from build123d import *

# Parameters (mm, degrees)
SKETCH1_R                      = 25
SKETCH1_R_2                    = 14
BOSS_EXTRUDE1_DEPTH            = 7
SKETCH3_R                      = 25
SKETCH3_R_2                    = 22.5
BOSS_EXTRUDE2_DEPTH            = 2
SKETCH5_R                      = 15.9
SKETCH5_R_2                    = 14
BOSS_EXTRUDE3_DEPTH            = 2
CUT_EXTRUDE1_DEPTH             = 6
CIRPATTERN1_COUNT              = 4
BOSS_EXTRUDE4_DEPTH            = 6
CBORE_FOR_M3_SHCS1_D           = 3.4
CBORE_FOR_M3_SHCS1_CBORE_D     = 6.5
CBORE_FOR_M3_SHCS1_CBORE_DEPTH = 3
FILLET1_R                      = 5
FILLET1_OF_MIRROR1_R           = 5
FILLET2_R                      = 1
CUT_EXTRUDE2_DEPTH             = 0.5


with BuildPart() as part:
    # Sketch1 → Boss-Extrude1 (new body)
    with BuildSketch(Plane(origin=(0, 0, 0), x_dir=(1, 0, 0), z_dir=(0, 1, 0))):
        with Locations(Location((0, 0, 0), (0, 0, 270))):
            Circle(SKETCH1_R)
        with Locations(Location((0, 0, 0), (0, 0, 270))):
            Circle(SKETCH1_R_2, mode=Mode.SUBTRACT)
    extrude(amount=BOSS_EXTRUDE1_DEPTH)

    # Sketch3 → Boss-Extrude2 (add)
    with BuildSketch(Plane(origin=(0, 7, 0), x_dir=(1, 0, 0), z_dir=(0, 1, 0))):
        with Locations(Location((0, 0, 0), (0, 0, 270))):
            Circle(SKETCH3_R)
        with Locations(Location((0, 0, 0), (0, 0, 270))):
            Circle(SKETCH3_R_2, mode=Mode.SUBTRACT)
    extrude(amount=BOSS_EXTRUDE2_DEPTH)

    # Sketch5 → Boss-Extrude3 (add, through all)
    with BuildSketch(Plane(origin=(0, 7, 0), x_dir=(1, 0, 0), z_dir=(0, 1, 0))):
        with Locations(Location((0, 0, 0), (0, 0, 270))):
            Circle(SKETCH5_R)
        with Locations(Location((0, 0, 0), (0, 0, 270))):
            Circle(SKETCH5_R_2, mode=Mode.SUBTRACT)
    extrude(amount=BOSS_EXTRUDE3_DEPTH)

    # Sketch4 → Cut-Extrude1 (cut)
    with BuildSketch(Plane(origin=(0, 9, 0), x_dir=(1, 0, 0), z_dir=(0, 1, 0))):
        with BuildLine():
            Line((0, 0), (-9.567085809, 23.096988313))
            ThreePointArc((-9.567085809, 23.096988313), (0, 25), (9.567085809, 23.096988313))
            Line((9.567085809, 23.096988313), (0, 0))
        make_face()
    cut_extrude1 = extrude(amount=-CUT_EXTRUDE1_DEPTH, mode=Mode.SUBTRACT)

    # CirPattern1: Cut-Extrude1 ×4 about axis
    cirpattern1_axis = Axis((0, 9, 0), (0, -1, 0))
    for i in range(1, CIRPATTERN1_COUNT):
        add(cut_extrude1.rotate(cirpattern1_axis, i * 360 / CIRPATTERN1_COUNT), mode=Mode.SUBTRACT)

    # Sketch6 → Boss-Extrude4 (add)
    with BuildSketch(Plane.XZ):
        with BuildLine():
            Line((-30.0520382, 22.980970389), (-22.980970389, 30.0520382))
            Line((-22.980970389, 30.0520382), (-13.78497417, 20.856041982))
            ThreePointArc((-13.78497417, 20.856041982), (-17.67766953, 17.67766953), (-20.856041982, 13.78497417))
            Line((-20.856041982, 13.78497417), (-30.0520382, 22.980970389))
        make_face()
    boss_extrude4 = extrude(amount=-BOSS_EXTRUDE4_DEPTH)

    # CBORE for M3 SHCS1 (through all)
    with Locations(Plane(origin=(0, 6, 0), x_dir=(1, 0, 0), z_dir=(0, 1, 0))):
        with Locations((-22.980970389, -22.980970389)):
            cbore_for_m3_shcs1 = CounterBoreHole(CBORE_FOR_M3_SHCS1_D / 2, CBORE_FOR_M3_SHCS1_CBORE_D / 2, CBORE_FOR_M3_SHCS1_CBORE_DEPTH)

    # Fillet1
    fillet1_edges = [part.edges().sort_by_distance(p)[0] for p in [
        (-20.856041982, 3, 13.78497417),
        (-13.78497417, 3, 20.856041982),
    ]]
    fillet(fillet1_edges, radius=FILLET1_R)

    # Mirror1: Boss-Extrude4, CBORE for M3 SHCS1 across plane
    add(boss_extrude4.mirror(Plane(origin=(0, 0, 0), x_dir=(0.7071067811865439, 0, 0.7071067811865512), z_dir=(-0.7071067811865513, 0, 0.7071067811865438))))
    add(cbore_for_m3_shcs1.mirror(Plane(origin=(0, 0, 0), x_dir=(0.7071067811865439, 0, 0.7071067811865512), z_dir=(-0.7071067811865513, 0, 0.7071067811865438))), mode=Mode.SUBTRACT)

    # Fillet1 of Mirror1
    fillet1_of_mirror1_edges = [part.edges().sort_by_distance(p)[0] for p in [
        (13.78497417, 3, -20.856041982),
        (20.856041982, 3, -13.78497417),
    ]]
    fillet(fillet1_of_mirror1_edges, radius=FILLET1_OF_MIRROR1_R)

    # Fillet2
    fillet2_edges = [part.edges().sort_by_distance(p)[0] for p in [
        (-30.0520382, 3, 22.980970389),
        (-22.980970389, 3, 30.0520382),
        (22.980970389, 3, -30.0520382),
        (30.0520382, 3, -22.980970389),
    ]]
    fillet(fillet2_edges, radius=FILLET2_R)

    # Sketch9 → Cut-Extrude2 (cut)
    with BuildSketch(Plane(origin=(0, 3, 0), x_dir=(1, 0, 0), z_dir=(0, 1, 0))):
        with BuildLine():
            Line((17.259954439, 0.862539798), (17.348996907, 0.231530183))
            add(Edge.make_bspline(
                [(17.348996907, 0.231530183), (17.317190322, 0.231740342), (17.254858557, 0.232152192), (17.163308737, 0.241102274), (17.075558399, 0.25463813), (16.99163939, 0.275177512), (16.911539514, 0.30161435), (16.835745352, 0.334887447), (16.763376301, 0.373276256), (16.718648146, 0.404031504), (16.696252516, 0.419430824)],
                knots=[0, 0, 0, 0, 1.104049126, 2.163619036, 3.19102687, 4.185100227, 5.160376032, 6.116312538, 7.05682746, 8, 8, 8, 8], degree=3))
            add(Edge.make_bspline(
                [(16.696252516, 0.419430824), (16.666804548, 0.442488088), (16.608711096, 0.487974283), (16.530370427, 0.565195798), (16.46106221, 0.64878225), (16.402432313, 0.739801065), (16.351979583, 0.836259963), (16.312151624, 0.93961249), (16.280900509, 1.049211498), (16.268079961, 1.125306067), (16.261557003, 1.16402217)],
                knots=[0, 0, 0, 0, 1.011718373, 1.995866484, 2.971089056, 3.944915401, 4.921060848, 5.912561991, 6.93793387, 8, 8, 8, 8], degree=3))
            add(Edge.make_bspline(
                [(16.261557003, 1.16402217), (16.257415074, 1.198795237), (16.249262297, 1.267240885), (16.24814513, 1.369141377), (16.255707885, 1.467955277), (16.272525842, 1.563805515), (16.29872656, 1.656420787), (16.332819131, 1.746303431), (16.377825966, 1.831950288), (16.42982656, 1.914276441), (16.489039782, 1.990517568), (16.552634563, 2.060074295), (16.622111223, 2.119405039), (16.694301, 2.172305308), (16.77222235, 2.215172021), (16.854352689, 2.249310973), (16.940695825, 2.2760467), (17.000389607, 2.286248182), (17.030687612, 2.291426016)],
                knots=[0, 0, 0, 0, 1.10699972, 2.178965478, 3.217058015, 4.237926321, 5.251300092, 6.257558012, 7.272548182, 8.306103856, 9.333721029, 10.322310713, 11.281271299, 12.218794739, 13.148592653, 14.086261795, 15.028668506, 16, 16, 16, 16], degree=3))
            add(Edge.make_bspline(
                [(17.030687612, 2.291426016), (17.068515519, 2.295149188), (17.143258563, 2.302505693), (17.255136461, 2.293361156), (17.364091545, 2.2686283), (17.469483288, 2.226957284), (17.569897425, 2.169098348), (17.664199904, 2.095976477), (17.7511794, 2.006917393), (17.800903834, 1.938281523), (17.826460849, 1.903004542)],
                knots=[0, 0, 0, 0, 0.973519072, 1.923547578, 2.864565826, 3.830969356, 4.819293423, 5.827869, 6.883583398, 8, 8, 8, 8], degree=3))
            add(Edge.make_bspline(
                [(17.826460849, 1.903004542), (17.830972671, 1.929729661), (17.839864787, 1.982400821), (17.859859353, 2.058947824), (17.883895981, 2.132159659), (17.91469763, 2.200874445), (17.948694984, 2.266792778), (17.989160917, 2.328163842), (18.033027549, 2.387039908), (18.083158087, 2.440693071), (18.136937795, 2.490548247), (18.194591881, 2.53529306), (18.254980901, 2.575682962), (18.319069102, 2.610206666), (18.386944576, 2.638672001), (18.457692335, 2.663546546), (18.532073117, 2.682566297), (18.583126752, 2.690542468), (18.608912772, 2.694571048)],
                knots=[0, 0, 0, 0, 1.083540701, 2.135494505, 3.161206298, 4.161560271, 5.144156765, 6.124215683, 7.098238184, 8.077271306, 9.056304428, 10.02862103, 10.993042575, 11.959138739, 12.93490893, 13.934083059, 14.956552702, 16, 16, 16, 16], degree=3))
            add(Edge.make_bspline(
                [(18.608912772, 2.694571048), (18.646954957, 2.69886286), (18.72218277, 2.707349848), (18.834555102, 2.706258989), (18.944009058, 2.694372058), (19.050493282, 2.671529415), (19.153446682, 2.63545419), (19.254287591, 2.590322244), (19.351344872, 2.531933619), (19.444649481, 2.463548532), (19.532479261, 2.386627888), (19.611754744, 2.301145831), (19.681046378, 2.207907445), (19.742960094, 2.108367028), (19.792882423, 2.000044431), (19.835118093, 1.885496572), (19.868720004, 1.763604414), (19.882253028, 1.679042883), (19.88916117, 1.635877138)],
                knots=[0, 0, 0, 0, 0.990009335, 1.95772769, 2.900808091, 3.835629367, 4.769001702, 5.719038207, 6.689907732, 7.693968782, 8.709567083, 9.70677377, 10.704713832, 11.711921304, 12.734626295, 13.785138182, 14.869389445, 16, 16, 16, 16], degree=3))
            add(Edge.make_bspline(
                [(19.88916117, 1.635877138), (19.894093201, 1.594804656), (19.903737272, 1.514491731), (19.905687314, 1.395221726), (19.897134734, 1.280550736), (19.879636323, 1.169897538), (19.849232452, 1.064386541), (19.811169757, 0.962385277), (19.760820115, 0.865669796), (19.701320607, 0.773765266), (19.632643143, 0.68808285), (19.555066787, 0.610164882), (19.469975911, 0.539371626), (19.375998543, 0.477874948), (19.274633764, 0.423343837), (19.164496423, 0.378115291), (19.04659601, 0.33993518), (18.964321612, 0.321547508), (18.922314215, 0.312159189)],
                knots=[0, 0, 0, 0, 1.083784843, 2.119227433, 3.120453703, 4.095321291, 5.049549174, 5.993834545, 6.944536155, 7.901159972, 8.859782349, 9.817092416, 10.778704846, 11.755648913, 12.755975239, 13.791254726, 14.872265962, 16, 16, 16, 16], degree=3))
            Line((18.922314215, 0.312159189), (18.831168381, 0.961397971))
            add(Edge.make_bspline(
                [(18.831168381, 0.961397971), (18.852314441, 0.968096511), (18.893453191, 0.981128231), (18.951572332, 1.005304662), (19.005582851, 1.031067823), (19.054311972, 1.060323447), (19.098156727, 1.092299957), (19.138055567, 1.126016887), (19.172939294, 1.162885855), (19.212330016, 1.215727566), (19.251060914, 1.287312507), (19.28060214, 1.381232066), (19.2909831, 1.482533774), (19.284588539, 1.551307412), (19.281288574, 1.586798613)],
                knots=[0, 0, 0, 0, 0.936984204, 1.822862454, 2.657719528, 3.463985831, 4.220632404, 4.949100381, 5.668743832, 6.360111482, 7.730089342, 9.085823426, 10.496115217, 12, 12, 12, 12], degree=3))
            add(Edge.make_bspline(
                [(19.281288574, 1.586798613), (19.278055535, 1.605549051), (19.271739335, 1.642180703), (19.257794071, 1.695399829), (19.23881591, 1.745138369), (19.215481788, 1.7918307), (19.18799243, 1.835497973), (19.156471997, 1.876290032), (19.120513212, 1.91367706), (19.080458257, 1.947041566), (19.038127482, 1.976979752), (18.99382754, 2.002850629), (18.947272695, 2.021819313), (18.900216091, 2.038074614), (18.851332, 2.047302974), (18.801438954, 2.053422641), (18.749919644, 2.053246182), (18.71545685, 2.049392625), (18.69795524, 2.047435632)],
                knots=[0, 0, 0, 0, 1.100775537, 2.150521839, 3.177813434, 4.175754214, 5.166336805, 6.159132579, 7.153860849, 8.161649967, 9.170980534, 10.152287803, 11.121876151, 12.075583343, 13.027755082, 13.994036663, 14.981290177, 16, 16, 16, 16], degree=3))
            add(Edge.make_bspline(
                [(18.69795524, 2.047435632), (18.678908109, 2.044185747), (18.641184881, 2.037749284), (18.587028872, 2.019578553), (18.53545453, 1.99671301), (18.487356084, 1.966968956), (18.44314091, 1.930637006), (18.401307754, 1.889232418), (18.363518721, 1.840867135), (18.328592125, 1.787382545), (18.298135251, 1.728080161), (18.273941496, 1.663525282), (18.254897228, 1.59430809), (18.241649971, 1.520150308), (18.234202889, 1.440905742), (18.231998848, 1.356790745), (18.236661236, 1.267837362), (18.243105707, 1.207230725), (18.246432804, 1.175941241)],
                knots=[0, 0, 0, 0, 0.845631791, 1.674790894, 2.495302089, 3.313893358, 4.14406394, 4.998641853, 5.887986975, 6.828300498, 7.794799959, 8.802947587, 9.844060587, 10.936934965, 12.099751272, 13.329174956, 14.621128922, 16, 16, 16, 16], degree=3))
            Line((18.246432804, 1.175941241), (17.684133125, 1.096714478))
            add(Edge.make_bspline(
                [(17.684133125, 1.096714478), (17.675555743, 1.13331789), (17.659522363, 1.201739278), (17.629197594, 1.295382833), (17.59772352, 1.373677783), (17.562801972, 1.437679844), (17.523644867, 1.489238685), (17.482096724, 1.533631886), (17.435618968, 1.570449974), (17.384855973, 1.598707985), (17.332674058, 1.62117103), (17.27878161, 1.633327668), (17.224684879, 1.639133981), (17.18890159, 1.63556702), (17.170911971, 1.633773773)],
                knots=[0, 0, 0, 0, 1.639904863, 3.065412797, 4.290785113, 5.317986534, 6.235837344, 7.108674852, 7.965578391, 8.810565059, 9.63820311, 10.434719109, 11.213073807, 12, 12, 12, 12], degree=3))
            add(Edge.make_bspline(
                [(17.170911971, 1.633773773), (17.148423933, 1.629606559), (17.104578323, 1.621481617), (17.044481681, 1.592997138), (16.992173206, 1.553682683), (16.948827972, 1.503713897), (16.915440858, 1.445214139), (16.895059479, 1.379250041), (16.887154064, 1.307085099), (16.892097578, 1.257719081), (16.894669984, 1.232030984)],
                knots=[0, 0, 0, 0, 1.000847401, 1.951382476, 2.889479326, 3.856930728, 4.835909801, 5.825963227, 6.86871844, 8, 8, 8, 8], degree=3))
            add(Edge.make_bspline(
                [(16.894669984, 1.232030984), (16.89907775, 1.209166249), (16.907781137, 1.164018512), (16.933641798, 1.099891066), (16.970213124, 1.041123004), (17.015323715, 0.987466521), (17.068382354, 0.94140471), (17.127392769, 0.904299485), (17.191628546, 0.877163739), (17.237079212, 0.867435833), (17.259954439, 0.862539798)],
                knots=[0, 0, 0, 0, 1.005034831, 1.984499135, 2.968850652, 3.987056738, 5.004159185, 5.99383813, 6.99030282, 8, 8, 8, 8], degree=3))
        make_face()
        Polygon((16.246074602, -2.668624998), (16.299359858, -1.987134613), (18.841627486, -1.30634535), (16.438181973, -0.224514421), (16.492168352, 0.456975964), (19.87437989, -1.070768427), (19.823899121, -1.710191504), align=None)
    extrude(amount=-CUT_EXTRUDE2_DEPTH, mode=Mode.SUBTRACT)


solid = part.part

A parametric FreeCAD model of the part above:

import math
import FreeCAD as App
import Part
import Sketcher
Q = App.Units.Quantity


def edges_at(feature, points):
    """Names of the edges that pass closest to the given points."""
    edges = feature.Shape.Edges
    near = lambda p: min(range(len(edges)), key=lambda i: edges[i].distToShape(Part.Vertex(*p))[0])
    return sorted({f"Edge{near(p) + 1}" for p in points})


def add_polygon(sketch, points):
    """Adds a closed chain of lines whose ends are joined by coincident constraints."""
    first, n = sketch.GeometryCount, len(points)
    for a, b in zip(points, points[1:] + points[:1]):
        sketch.addGeometry(Part.LineSegment(App.Vector(*a, 0), App.Vector(*b, 0)), False)
    for i in range(n):
        sketch.addConstraint(Sketcher.Constraint("Coincident", first + i, 2, first + (i + 1) % n, 1))

doc = App.newDocument("Part")
params = doc.addObject("Spreadsheet::Sheet", "Params")
for row, (alias, value) in enumerate([
    ("sketch1_diameter", "50 mm"),
    ("sketch1_diameter2", "28 mm"),
    ("pad1_length", "7 mm"),
    ("sketch2_diameter", "50 mm"),
    ("sketch2_diameter2", "45 mm"),
    ("pad2_length", "2 mm"),
    ("sketch3_diameter", "28 mm"),
    ("sketch3_diameter2", "31.8 mm"),
    ("pad3_length", "2 mm"),
    ("sketch4_radius", "25 mm"),
    ("pocket1_length", "6 mm"),
    ("sketch5_radius", "25 mm"),
    ("sketch5_length", "10 mm"),
    ("pad4_length", "6 mm"),
    ("sketch6_diameter", "3.4 mm"),
    ("hole_diameter", "3.4 mm"),
    ("hole_cbore_diameter", "6.5 mm"),
    ("hole_cbore_depth", "3 mm"),
    ("fillet_radius", "5 mm"),
    ("fillet2_radius", "5 mm"),
    ("fillet3_radius", "1 mm"),
    ("pocket2_length", "0.5 mm"),
], start=1):
    params.set(f"A{row}", alias)
    params.set(f"B{row}", "=" + value)
    params.setAlias(f"B{row}", alias)

body = doc.addObject("PartDesign::Body", "Body")

# Sketch on XZ plane
sketch1 = doc.addObject("Sketcher::SketchObject", "Sketch")
body.addObject(sketch1)
sketch1.AttachmentSupport = (doc.XZ_Plane, [""])
sketch1.MapMode = "FlatFace"
sketch1.addGeometry([
    Part.Circle(App.Vector(0, 0, 0), App.Vector(0, 0, 1), 25),
    Part.Circle(App.Vector(0, 0, 0), App.Vector(0, 0, 1), 14),
], False)
sketch1.addConstraint([
    Sketcher.Constraint("Coincident", 0, 3, -1, 1),
    Sketcher.Constraint("Coincident", 1, 3, -1, 1),
    Sketcher.Constraint("Diameter", 0, Q("50 mm")),
    Sketcher.Constraint("Diameter", 1, Q("28 mm")),
])
sketch1.setExpression("Constraints[2]", "Params.sketch1_diameter")
sketch1.setExpression("Constraints[3]", "Params.sketch1_diameter2")
pad1 = doc.addObject("PartDesign::Pad", "Pad")
body.addObject(pad1)
pad1.Profile = sketch1
pad1.setExpression("Length", "Params.pad1_length")
pad1.Reversed = True

# Sketch on XZ plane
sketch2 = doc.addObject("Sketcher::SketchObject", "Sketch001")
body.addObject(sketch2)
sketch2.AttachmentSupport = (doc.XZ_Plane, [""])
sketch2.MapMode = "FlatFace"
sketch2.AttachmentOffset = App.Placement(App.Vector(0, 0, -7), App.Rotation())
sketch2.addGeometry([
    Part.Circle(App.Vector(0, 0, 0), App.Vector(0, 0, 1), 25),
    Part.Circle(App.Vector(0, 0, 0), App.Vector(0, 0, 1), 22),
], False)
sketch2.addConstraint([
    Sketcher.Constraint("Coincident", 0, 3, -1, 1),
    Sketcher.Constraint("Coincident", 1, 3, -1, 1),
    Sketcher.Constraint("Diameter", 0, Q("50 mm")),
    Sketcher.Constraint("Diameter", 1, Q("45 mm")),
])
sketch2.setExpression("Constraints[2]", "Params.sketch2_diameter")
sketch2.setExpression("Constraints[3]", "Params.sketch2_diameter2")
pad2 = doc.addObject("PartDesign::Pad", "Pad001")
body.addObject(pad2)
pad2.Profile = sketch2
pad2.setExpression("Length", "Params.pad2_length")
pad2.Reversed = True

# Sketch on XZ plane
sketch3 = doc.addObject("Sketcher::SketchObject", "Sketch002")
body.addObject(sketch3)
sketch3.AttachmentSupport = (doc.XZ_Plane, [""])
sketch3.MapMode = "FlatFace"
sketch3.AttachmentOffset = App.Placement(App.Vector(0, 0, -7), App.Rotation())
sketch3.addGeometry([
    Part.Circle(App.Vector(0, 0, 0), App.Vector(0, 0, 1), 16),
    Part.Circle(App.Vector(0, 0, 0), App.Vector(0, 0, 1), 14),
], False)
sketch3.addConstraint([
    Sketcher.Constraint("Coincident", 0, 3, -1, 1),
    Sketcher.Constraint("Coincident", 1, 3, -1, 1),
    Sketcher.Constraint("Diameter", 1, Q("28 mm")),
    Sketcher.Constraint("Diameter", 0, Q("31.8 mm")),
])
sketch3.setExpression("Constraints[2]", "Params.sketch3_diameter")
sketch3.setExpression("Constraints[3]", "Params.sketch3_diameter2")
pad3 = doc.addObject("PartDesign::Pad", "Pad002")
body.addObject(pad3)
pad3.Profile = sketch3
pad3.setExpression("Length", "Params.pad3_length")
pad3.Reversed = True

# Sketch on XZ plane
sketch4 = doc.addObject("Sketcher::SketchObject", "Sketch003")
body.addObject(sketch4)
sketch4.AttachmentSupport = (doc.XZ_Plane, [""])
sketch4.MapMode = "FlatFace"
sketch4.AttachmentOffset = App.Placement(App.Vector(0, 0, -9), App.Rotation())
sketch4.addGeometry([
    Part.LineSegment(App.Vector(-10, -23, 0), App.Vector(0, 0, 0)),
    Part.LineSegment(App.Vector(0, 0, 0), App.Vector(10, -23, 0)),
    Part.ArcOfCircle(Part.Circle(App.Vector(0, 0, 0), App.Vector(0, 0, 1), 25), math.radians(-112), math.radians(-68)),
], False)
sketch4.addConstraint([
    Sketcher.Constraint("Coincident", 0, 2, 1, 1),
    Sketcher.Constraint("Coincident", 1, 2, 2, 2),
    Sketcher.Constraint("Coincident", 2, 1, 0, 1),
    Sketcher.Constraint("Coincident", 2, 3, -1, 1),
    Sketcher.Constraint("Coincident", 0, 2, -1, 1),
    Sketcher.Constraint("Horizontal", 1, 2, 2, 1),
    Sketcher.Constraint("Radius", 2, Q("25 mm")),
    Sketcher.Constraint("Angle", 0, Q("67.5 deg")),
])
sketch4.setExpression("Constraints[6]", "Params.sketch4_radius")
pocket1 = doc.addObject("PartDesign::Pocket", "Pocket")
body.addObject(pocket1)
pocket1.Profile = sketch4
pocket1.setExpression("Length", "Params.pocket1_length")
pocket1.Reversed = True
doc.recompute()

polarpattern = doc.addObject("PartDesign::PolarPattern", "PolarPattern")
body.addObject(polarpattern)
polarpattern.Originals = [pocket1]
polarpattern.Axis = (doc.Y_Axis, [""])
polarpattern.Angle = 360
polarpattern.Occurrences = 4
body.Tip = polarpattern

# Sketch on XZ plane
sketch5 = doc.addObject("Sketcher::SketchObject", "Sketch004")
body.addObject(sketch5)
sketch5.AttachmentSupport = (doc.XZ_Plane, [""])
sketch5.MapMode = "FlatFace"
sketch5.addGeometry([
    Part.LineSegment(App.Vector(-23, 30, 0), App.Vector(-30, 23, 0)),
    Part.LineSegment(App.Vector(-30, 23, 0), App.Vector(-21, 14, 0)),
    Part.ArcOfCircle(Part.Circle(App.Vector(0, 0, 0), App.Vector(0, 0, 1), 25), math.radians(123), math.radians(147)),
    Part.LineSegment(App.Vector(-14, 21, 0), App.Vector(-23, 30, 0)),
], False)
sketch5.addConstraint([
    Sketcher.Constraint("Coincident", 0, 2, 1, 1),
    Sketcher.Constraint("Coincident", 1, 2, 2, 2),
    Sketcher.Constraint("Coincident", 2, 1, 3, 1),
    Sketcher.Constraint("Coincident", 3, 2, 0, 1),
    Sketcher.Constraint("Coincident", 2, 3, -1, 1),
    Sketcher.Constraint("Perpendicular", 0, 1),
    Sketcher.Constraint("Parallel", 1, 3),
    Sketcher.Constraint("Equal", 1, 3),
    Sketcher.Constraint("Radius", 2, Q("25 mm")),
    Sketcher.Constraint("Angle", 0, Q("-135 deg")),
    Sketcher.Constraint("Distance", 0, Q("10 mm")),
    Sketcher.Constraint("DistanceX", 0, 2, -1, 1, Q("30.052038 mm")),
])
sketch5.setExpression("Constraints[8]", "Params.sketch5_radius")
sketch5.setExpression("Constraints[10]", "Params.sketch5_length")
pad4 = doc.addObject("PartDesign::Pad", "Pad003")
body.addObject(pad4)
pad4.Profile = sketch5
pad4.setExpression("Length", "Params.pad4_length")
pad4.Reversed = True

# Sketch on XZ plane
sketch6 = doc.addObject("Sketcher::SketchObject", "Sketch005")
body.addObject(sketch6)
sketch6.AttachmentSupport = (doc.XZ_Plane, [""])
sketch6.MapMode = "FlatFace"
sketch6.AttachmentOffset = App.Placement(App.Vector(0, 0, -6), App.Rotation())
sketch6.addGeometry(Part.Circle(App.Vector(-23, 23, 0), App.Vector(0, 0, 1), 1.7), False)
sketch6.addConstraint([
    Sketcher.Constraint("Diameter", 0, Q("3.4 mm")),
    Sketcher.Constraint("DistanceX", 0, 3, -1, 1, Q("22.98097 mm")),
    Sketcher.Constraint("DistanceY", -1, 1, 0, 3, Q("22.98097 mm")),
])
sketch6.setExpression("Constraints[0]", "Params.sketch6_diameter")
doc.recompute()
hole = doc.addObject("PartDesign::Hole", "Hole")
body.addObject(hole)
hole.Profile = sketch6
hole.ThreadType = "None"
hole.setExpression("Diameter", "Params.hole_diameter")
hole.DepthType = "ThroughAll"
hole.HoleCutType = "Counterbore"
hole.setExpression("HoleCutDiameter", "Params.hole_cbore_diameter")
hole.setExpression("HoleCutDepth", "Params.hole_cbore_depth")
hole.Reversed = True
doc.recompute()

fillet = doc.addObject("PartDesign::Fillet", "Fillet")
body.addObject(fillet)
fillet.Base = (hole, edges_at(hole, [(-20.856, 3, 13.785), (-13.785, 3, 20.856)]))
fillet.setExpression("Radius", "Params.fillet_radius")
doc.recompute()

datumplane = doc.addObject("PartDesign::Plane", "DatumPlane")
body.addObject(datumplane)
datumplane.Placement = App.Placement(App.Vector(0, 0, 0), App.Rotation(App.Vector(-0.707106781, 0, -0.707106781), App.Vector(0, -1, 0), App.Vector(-0.707106781, 0, 0.707106781), "ZXY"))
mirrored = doc.addObject("PartDesign::Mirrored", "Mirrored")
body.addObject(mirrored)
mirrored.Originals = [pad4, hole]
mirrored.MirrorPlane = (datumplane, [""])
body.Tip = mirrored
doc.recompute()

fillet2 = doc.addObject("PartDesign::Fillet", "Fillet001")
body.addObject(fillet2)
fillet2.Base = (mirrored, edges_at(mirrored, [(13.785, 3, -20.856), (20.856, 3, -13.785)]))
fillet2.setExpression("Radius", "Params.fillet2_radius")
doc.recompute()

fillet3 = doc.addObject("PartDesign::Fillet", "Fillet002")
body.addObject(fillet3)
fillet3.Base = (fillet2, edges_at(fillet2, [
    (-30.052, 3, 22.981),
    (-22.981, 3, 30.052),
    (22.981, 3, -30.052),
    (30.052, 3, -22.981),
]))
fillet3.setExpression("Radius", "Params.fillet3_radius")

# Sketch on XZ plane
sketch7 = doc.addObject("Sketcher::SketchObject", "Sketch006")
body.addObject(sketch7)
sketch7.AttachmentSupport = (doc.XZ_Plane, [""])
sketch7.MapMode = "FlatFace"
sketch7.AttachmentOffset = App.Placement(App.Vector(0, 0, -3), App.Rotation())
sketch7.addGeometry(Part.LineSegment(App.Vector(17.348997, -0.23153, 0), App.Vector(17.259954, -0.86254, 0)), False)  # 0
sketch7.addGeometry(Part.BSplineCurve([App.Vector(16.89467, -1.232031, 0), App.Vector(16.899078, -1.209166, 0), App.Vector(16.907781, -1.164019, 0), App.Vector(16.933642, -1.099891, 0), App.Vector(16.970213, -1.041123, 0), App.Vector(17.015324, -0.987467, 0), App.Vector(17.068382, -0.941405, 0), App.Vector(17.127393, -0.904299, 0), App.Vector(17.191629, -0.877164, 0), App.Vector(17.237079, -0.867436, 0), App.Vector(17.259954, -0.86254, 0)], [4, 1, 1, 1, 1, 1, 1, 1, 4], [0, 1.005034831, 1.984499135, 2.968850652, 3.987056738, 5.004159185, 5.99383813, 6.99030282, 8], False, 3, [1, 1, 1, 1, 1, 1, 1, 1, 1, 1, 1], False), False)  # 1
sketch7.addGeometry(Part.BSplineCurve([App.Vector(17.170912, -1.633774, 0), App.Vector(17.148424, -1.629607, 0), App.Vector(17.104578, -1.621482, 0), App.Vector(17.044482, -1.592997, 0), App.Vector(16.992173, -1.553683, 0), App.Vector(16.948828, -1.503714, 0), App.Vector(16.915441, -1.445214, 0), App.Vector(16.895059, -1.37925, 0), App.Vector(16.887154, -1.307085, 0), App.Vector(16.892098, -1.257719, 0), App.Vector(16.89467, -1.232031, 0)], [4, 1, 1, 1, 1, 1, 1, 1, 4], [0, 1.000847401, 1.951382476, 2.889479326, 3.856930728, 4.835909801, 5.825963227, 6.86871844, 8], False, 3, [1, 1, 1, 1, 1, 1, 1, 1, 1, 1, 1], False), False)  # 2
sketch7.addGeometry(Part.BSplineCurve([App.Vector(17.684133, -1.096714, 0), App.Vector(17.675556, -1.133318, 0), App.Vector(17.659522, -1.201739, 0), App.Vector(17.629198, -1.295383, 0), App.Vector(17.597724, -1.373678, 0), App.Vector(17.562802, -1.43768, 0), App.Vector(17.523645, -1.489239, 0), App.Vector(17.482097, -1.533632, 0), App.Vector(17.435619, -1.57045, 0), App.Vector(17.384856, -1.598708, 0), App.Vector(17.332674, -1.621171, 0), App.Vector(17.278782, -1.633328, 0), App.Vector(17.224685, -1.639134, 0), App.Vector(17.188902, -1.635567, 0), App.Vector(17.170912, -1.633774, 0)], [4, 1, 1, 1, 1, 1, 1, 1, 1, 1, 1, 1, 4], [0, 1.639904863, 3.065412797, 4.290785113, 5.317986534, 6.235837344, 7.108674852, 7.965578391, 8.810565059, 9.63820311, 10.434719109, 11.213073807, 12], False, 3, [1, 1, 1, 1, 1, 1, 1, 1, 1, 1, 1, 1, 1, 1, 1], False), False)  # 3
sketch7.addGeometry(Part.LineSegment(App.Vector(17.684133, -1.096714, 0), App.Vector(18.246433, -1.175941, 0)), False)  # 4
sketch7.addGeometry(Part.BSplineCurve([App.Vector(18.697955, -2.047436, 0), App.Vector(18.678908, -2.044186, 0), App.Vector(18.641185, -2.037749, 0), App.Vector(18.587029, -2.019579, 0), App.Vector(18.535455, -1.996713, 0), App.Vector(18.487356, -1.966969, 0), App.Vector(18.443141, -1.930637, 0), App.Vector(18.401308, -1.889232, 0), App.Vector(18.363519, -1.840867, 0), App.Vector(18.328592, -1.787383, 0), App.Vector(18.298135, -1.72808, 0), App.Vector(18.273941, -1.663525, 0), App.Vector(18.254897, -1.594308, 0), App.Vector(18.24165, -1.52015, 0), App.Vector(18.234203, -1.440906, 0), App.Vector(18.231999, -1.356791, 0), App.Vector(18.236661, -1.267837, 0), App.Vector(18.243106, -1.207231, 0), App.Vector(18.246433, -1.175941, 0)], [4, 1, 1, 1, 1, 1, 1, 1, 1, 1, 1, 1, 1, 1, 1, 1, 4], [0, 0.845631791, 1.674790894, 2.495302089, 3.313893358, 4.14406394, 4.998641853, 5.887986975, 6.828300498, 7.794799959, 8.802947587, 9.844060587, 10.936934965, 12.099751272, 13.329174956, 14.621128922, 16], False, 3, [1, 1, 1, 1, 1, 1, 1, 1, 1, 1, 1, 1, 1, 1, 1, 1, 1, 1, 1], False), False)  # 5
sketch7.addGeometry(Part.BSplineCurve([App.Vector(19.281289, -1.586799, 0), App.Vector(19.278056, -1.605549, 0), App.Vector(19.271739, -1.642181, 0), App.Vector(19.257794, -1.6954, 0), App.Vector(19.238816, -1.745138, 0), App.Vector(19.215482, -1.791831, 0), App.Vector(19.187992, -1.835498, 0), App.Vector(19.156472, -1.87629, 0), App.Vector(19.120513, -1.913677, 0), App.Vector(19.080458, -1.947042, 0), App.Vector(19.038127, -1.97698, 0), App.Vector(18.993828, -2.002851, 0), App.Vector(18.947273, -2.021819, 0), App.Vector(18.900216, -2.038075, 0), App.Vector(18.851332, -2.047303, 0), App.Vector(18.801439, -2.053423, 0), App.Vector(18.74992, -2.053246, 0), App.Vector(18.715457, -2.049393, 0), App.Vector(18.697955, -2.047436, 0)], [4, 1, 1, 1, 1, 1, 1, 1, 1, 1, 1, 1, 1, 1, 1, 1, 4], [0, 1.100775537, 2.150521839, 3.177813434, 4.175754214, 5.166336805, 6.159132579, 7.153860849, 8.161649967, 9.170980534, 10.152287803, 11.121876151, 12.075583343, 13.027755082, 13.994036663, 14.981290177, 16], False, 3, [1, 1, 1, 1, 1, 1, 1, 1, 1, 1, 1, 1, 1, 1, 1, 1, 1, 1, 1], False), False)  # 6
sketch7.addGeometry(Part.BSplineCurve([App.Vector(18.831168, -0.961398, 0), App.Vector(18.852314, -0.968097, 0), App.Vector(18.893453, -0.981128, 0), App.Vector(18.951572, -1.005305, 0), App.Vector(19.005583, -1.031068, 0), App.Vector(19.054312, -1.060323, 0), App.Vector(19.098157, -1.0923, 0), App.Vector(19.138056, -1.126017, 0), App.Vector(19.172939, -1.162886, 0), App.Vector(19.21233, -1.215728, 0), App.Vector(19.251061, -1.287313, 0), App.Vector(19.280602, -1.381232, 0), App.Vector(19.290983, -1.482534, 0), App.Vector(19.284589, -1.551307, 0), App.Vector(19.281289, -1.586799, 0)], [4, 1, 1, 1, 1, 1, 1, 1, 1, 1, 1, 1, 4], [0, 0.936984204, 1.822862454, 2.657719528, 3.463985831, 4.220632404, 4.949100381, 5.668743832, 6.360111482, 7.730089342, 9.085823426, 10.496115217, 12], False, 3, [1, 1, 1, 1, 1, 1, 1, 1, 1, 1, 1, 1, 1, 1, 1], False), False)  # 7
sketch7.addGeometry(Part.LineSegment(App.Vector(18.831168, -0.961398, 0), App.Vector(18.922314, -0.312159, 0)), False)  # 8
sketch7.addGeometry(Part.BSplineCurve([App.Vector(19.889161, -1.635877, 0), App.Vector(19.894093, -1.594805, 0), App.Vector(19.903737, -1.514492, 0), App.Vector(19.905687, -1.395222, 0), App.Vector(19.897135, -1.280551, 0), App.Vector(19.879636, -1.169898, 0), App.Vector(19.849232, -1.064387, 0), App.Vector(19.81117, -0.962385, 0), App.Vector(19.76082, -0.86567, 0), App.Vector(19.701321, -0.773765, 0), App.Vector(19.632643, -0.688083, 0), App.Vector(19.555067, -0.610165, 0), App.Vector(19.469976, -0.539372, 0), App.Vector(19.375999, -0.477875, 0), App.Vector(19.274634, -0.423344, 0), App.Vector(19.164496, -0.378115, 0), App.Vector(19.046596, -0.339935, 0), App.Vector(18.964322, -0.321548, 0), App.Vector(18.922314, -0.312159, 0)], [4, 1, 1, 1, 1, 1, 1, 1, 1, 1, 1, 1, 1, 1, 1, 1, 4], [0, 1.083784843, 2.119227433, 3.120453703, 4.095321291, 5.049549174, 5.993834545, 6.944536155, 7.901159972, 8.859782349, 9.817092416, 10.778704846, 11.755648913, 12.755975239, 13.791254726, 14.872265962, 16], False, 3, [1, 1, 1, 1, 1, 1, 1, 1, 1, 1, 1, 1, 1, 1, 1, 1, 1, 1, 1], False), False)  # 9
sketch7.addGeometry(Part.BSplineCurve([App.Vector(18.608913, -2.694571, 0), App.Vector(18.646955, -2.698863, 0), App.Vector(18.722183, -2.70735, 0), App.Vector(18.834555, -2.706259, 0), App.Vector(18.944009, -2.694372, 0), App.Vector(19.050493, -2.671529, 0), App.Vector(19.153447, -2.635454, 0), App.Vector(19.254288, -2.590322, 0), App.Vector(19.351345, -2.531934, 0), App.Vector(19.444649, -2.463549, 0), App.Vector(19.532479, -2.386628, 0), App.Vector(19.611755, -2.301146, 0), App.Vector(19.681046, -2.207907, 0), App.Vector(19.74296, -2.108367, 0), App.Vector(19.792882, -2.000044, 0), App.Vector(19.835118, -1.885497, 0), App.Vector(19.86872, -1.763604, 0), App.Vector(19.882253, -1.679043, 0), App.Vector(19.889161, -1.635877, 0)], [4, 1, 1, 1, 1, 1, 1, 1, 1, 1, 1, 1, 1, 1, 1, 1, 4], [0, 0.990009335, 1.95772769, 2.900808091, 3.835629367, 4.769001702, 5.719038207, 6.689907732, 7.693968782, 8.709567083, 9.70677377, 10.704713832, 11.711921304, 12.734626295, 13.785138182, 14.869389445, 16], False, 3, [1, 1, 1, 1, 1, 1, 1, 1, 1, 1, 1, 1, 1, 1, 1, 1, 1, 1, 1], False), False)  # 10
sketch7.addGeometry(Part.BSplineCurve([App.Vector(17.826461, -1.903005, 0), App.Vector(17.830973, -1.92973, 0), App.Vector(17.839865, -1.982401, 0), App.Vector(17.859859, -2.058948, 0), App.Vector(17.883896, -2.13216, 0), App.Vector(17.914698, -2.200874, 0), App.Vector(17.948695, -2.266793, 0), App.Vector(17.989161, -2.328164, 0), App.Vector(18.033028, -2.38704, 0), App.Vector(18.083158, -2.440693, 0), App.Vector(18.136938, -2.490548, 0), App.Vector(18.194592, -2.535293, 0), App.Vector(18.254981, -2.575683, 0), App.Vector(18.319069, -2.610207, 0), App.Vector(18.386945, -2.638672, 0), App.Vector(18.457692, -2.663547, 0), App.Vector(18.532073, -2.682566, 0), App.Vector(18.583127, -2.690542, 0), App.Vector(18.608913, -2.694571, 0)], [4, 1, 1, 1, 1, 1, 1, 1, 1, 1, 1, 1, 1, 1, 1, 1, 4], [0, 1.083540701, 2.135494505, 3.161206298, 4.161560271, 5.144156765, 6.124215683, 7.098238184, 8.077271306, 9.056304428, 10.02862103, 10.993042575, 11.959138739, 12.93490893, 13.934083059, 14.956552702, 16], False, 3, [1, 1, 1, 1, 1, 1, 1, 1, 1, 1, 1, 1, 1, 1, 1, 1, 1, 1, 1], False), False)  # 11
sketch7.addGeometry(Part.BSplineCurve([App.Vector(17.030688, -2.291426, 0), App.Vector(17.068516, -2.295149, 0), App.Vector(17.143259, -2.302506, 0), App.Vector(17.255136, -2.293361, 0), App.Vector(17.364092, -2.268628, 0), App.Vector(17.469483, -2.226957, 0), App.Vector(17.569897, -2.169098, 0), App.Vector(17.6642, -2.095976, 0), App.Vector(17.751179, -2.006917, 0), App.Vector(17.800904, -1.938282, 0), App.Vector(17.826461, -1.903005, 0)], [4, 1, 1, 1, 1, 1, 1, 1, 4], [0, 0.973519072, 1.923547578, 2.864565826, 3.830969356, 4.819293423, 5.827869, 6.883583398, 8], False, 3, [1, 1, 1, 1, 1, 1, 1, 1, 1, 1, 1], False), False)  # 12
sketch7.addGeometry(Part.BSplineCurve([App.Vector(16.261557, -1.164022, 0), App.Vector(16.257415, -1.198795, 0), App.Vector(16.249262, -1.267241, 0), App.Vector(16.248145, -1.369141, 0), App.Vector(16.255708, -1.467955, 0), App.Vector(16.272526, -1.563806, 0), App.Vector(16.298727, -1.656421, 0), App.Vector(16.332819, -1.746303, 0), App.Vector(16.377826, -1.83195, 0), App.Vector(16.429827, -1.914276, 0), App.Vector(16.48904, -1.990518, 0), App.Vector(16.552635, -2.060074, 0), App.Vector(16.622111, -2.119405, 0), App.Vector(16.694301, -2.172305, 0), App.Vector(16.772222, -2.215172, 0), App.Vector(16.854353, -2.249311, 0), App.Vector(16.940696, -2.276047, 0), App.Vector(17.00039, -2.286248, 0), App.Vector(17.030688, -2.291426, 0)], [4, 1, 1, 1, 1, 1, 1, 1, 1, 1, 1, 1, 1, 1, 1, 1, 4], [0, 1.10699972, 2.178965478, 3.217058015, 4.237926321, 5.251300092, 6.257558012, 7.272548182, 8.306103856, 9.333721029, 10.322310713, 11.281271299, 12.218794739, 13.148592653, 14.086261795, 15.028668506, 16], False, 3, [1, 1, 1, 1, 1, 1, 1, 1, 1, 1, 1, 1, 1, 1, 1, 1, 1, 1, 1], False), False)  # 13
sketch7.addGeometry(Part.BSplineCurve([App.Vector(16.696253, -0.419431, 0), App.Vector(16.666805, -0.442488, 0), App.Vector(16.608711, -0.487974, 0), App.Vector(16.53037, -0.565196, 0), App.Vector(16.461062, -0.648782, 0), App.Vector(16.402432, -0.739801, 0), App.Vector(16.35198, -0.83626, 0), App.Vector(16.312152, -0.939612, 0), App.Vector(16.280901, -1.049211, 0), App.Vector(16.26808, -1.125306, 0), App.Vector(16.261557, -1.164022, 0)], [4, 1, 1, 1, 1, 1, 1, 1, 4], [0, 1.011718373, 1.995866484, 2.971089056, 3.944915401, 4.921060848, 5.912561991, 6.93793387, 8], False, 3, [1, 1, 1, 1, 1, 1, 1, 1, 1, 1, 1], False), False)  # 14
sketch7.addGeometry(Part.BSplineCurve([App.Vector(17.348997, -0.23153, 0), App.Vector(17.31719, -0.23174, 0), App.Vector(17.254859, -0.232152, 0), App.Vector(17.163309, -0.241102, 0), App.Vector(17.075558, -0.254638, 0), App.Vector(16.991639, -0.275178, 0), App.Vector(16.91154, -0.301614, 0), App.Vector(16.835745, -0.334887, 0), App.Vector(16.763376, -0.373276, 0), App.Vector(16.718648, -0.404032, 0), App.Vector(16.696253, -0.419431, 0)], [4, 1, 1, 1, 1, 1, 1, 1, 4], [0, 1.104049126, 2.163619036, 3.19102687, 4.185100227, 5.160376032, 6.116312538, 7.05682746, 8], False, 3, [1, 1, 1, 1, 1, 1, 1, 1, 1, 1, 1], False), False)  # 15
add_polygon(sketch7, [(16.29936, 1.987135), (16.246075, 2.668625), (19.823899, 1.710192), (19.87438, 1.070768), (16.492168, -0.456976), (16.438182, 0.224514), (18.841627, 1.306345)])  # lines 16-22
sketch7.addConstraint([
    Sketcher.Constraint("Block", 1),
    Sketcher.Constraint("Block", 2),
    Sketcher.Constraint("Block", 3),
    Sketcher.Constraint("Block", 5),
    Sketcher.Constraint("Block", 6),
    Sketcher.Constraint("Block", 7),
    Sketcher.Constraint("Block", 9),
    Sketcher.Constraint("Block", 10),
    Sketcher.Constraint("Block", 11),
    Sketcher.Constraint("Block", 12),
    Sketcher.Constraint("Block", 13),
    Sketcher.Constraint("Block", 14),
    Sketcher.Constraint("Block", 15),
    Sketcher.Constraint("Coincident", 0, 2, 1, 2),
    Sketcher.Constraint("Coincident", 3, 1, 4, 1),
    Sketcher.Constraint("Coincident", 4, 2, 5, 2),
    Sketcher.Constraint("Coincident", 7, 1, 8, 1),
    Sketcher.Constraint("Coincident", 8, 2, 9, 2),
    Sketcher.Constraint("Coincident", 15, 1, 0, 1),
    Sketcher.Constraint("Distance", 21, Q("2.635699 mm")),
    Sketcher.Constraint("DistanceX", -1, 1, 17, 2, Q("19.823899 mm")),
    Sketcher.Constraint("DistanceY", 19, 2, 16, 2, Q("3.125601 mm")),
    Sketcher.Constraint("Distance", 16, Q("0.68357 mm")),
    Sketcher.Constraint("DistanceY", -1, 1, 17, 2, Q("1.710192 mm")),
    Sketcher.Constraint("DistanceX", -1, 1, 18, 2, Q("19.87438 mm")),
    Sketcher.Constraint("DistanceY", -1, 1, 18, 2, Q("1.070768 mm")),
    Sketcher.Constraint("DistanceX", -1, 1, 19, 2, Q("16.492168 mm")),
    Sketcher.Constraint("DistanceX", -1, 1, 20, 2, Q("16.438182 mm")),
    Sketcher.Constraint("DistanceX", -1, 1, 22, 2, Q("16.29936 mm")),
    Sketcher.Constraint("DistanceX", 16, 2, 0, 2, Q("1.01388 mm")),
    Sketcher.Constraint("DistanceY", 19, 2, 20, 2, Q("0.68149 mm")),
    Sketcher.Constraint("DistanceX", 21, 2, 17, 2, Q("0.982272 mm")),
    Sketcher.Constraint("Distance", 17, Q("3.703974 mm")),
])
pocket2 = doc.addObject("PartDesign::Pocket", "Pocket001")
body.addObject(pocket2)
pocket2.Profile = sketch7
pocket2.setExpression("Length", "Params.pocket2_length")
pocket2.Reversed = True

doc.recompute()
